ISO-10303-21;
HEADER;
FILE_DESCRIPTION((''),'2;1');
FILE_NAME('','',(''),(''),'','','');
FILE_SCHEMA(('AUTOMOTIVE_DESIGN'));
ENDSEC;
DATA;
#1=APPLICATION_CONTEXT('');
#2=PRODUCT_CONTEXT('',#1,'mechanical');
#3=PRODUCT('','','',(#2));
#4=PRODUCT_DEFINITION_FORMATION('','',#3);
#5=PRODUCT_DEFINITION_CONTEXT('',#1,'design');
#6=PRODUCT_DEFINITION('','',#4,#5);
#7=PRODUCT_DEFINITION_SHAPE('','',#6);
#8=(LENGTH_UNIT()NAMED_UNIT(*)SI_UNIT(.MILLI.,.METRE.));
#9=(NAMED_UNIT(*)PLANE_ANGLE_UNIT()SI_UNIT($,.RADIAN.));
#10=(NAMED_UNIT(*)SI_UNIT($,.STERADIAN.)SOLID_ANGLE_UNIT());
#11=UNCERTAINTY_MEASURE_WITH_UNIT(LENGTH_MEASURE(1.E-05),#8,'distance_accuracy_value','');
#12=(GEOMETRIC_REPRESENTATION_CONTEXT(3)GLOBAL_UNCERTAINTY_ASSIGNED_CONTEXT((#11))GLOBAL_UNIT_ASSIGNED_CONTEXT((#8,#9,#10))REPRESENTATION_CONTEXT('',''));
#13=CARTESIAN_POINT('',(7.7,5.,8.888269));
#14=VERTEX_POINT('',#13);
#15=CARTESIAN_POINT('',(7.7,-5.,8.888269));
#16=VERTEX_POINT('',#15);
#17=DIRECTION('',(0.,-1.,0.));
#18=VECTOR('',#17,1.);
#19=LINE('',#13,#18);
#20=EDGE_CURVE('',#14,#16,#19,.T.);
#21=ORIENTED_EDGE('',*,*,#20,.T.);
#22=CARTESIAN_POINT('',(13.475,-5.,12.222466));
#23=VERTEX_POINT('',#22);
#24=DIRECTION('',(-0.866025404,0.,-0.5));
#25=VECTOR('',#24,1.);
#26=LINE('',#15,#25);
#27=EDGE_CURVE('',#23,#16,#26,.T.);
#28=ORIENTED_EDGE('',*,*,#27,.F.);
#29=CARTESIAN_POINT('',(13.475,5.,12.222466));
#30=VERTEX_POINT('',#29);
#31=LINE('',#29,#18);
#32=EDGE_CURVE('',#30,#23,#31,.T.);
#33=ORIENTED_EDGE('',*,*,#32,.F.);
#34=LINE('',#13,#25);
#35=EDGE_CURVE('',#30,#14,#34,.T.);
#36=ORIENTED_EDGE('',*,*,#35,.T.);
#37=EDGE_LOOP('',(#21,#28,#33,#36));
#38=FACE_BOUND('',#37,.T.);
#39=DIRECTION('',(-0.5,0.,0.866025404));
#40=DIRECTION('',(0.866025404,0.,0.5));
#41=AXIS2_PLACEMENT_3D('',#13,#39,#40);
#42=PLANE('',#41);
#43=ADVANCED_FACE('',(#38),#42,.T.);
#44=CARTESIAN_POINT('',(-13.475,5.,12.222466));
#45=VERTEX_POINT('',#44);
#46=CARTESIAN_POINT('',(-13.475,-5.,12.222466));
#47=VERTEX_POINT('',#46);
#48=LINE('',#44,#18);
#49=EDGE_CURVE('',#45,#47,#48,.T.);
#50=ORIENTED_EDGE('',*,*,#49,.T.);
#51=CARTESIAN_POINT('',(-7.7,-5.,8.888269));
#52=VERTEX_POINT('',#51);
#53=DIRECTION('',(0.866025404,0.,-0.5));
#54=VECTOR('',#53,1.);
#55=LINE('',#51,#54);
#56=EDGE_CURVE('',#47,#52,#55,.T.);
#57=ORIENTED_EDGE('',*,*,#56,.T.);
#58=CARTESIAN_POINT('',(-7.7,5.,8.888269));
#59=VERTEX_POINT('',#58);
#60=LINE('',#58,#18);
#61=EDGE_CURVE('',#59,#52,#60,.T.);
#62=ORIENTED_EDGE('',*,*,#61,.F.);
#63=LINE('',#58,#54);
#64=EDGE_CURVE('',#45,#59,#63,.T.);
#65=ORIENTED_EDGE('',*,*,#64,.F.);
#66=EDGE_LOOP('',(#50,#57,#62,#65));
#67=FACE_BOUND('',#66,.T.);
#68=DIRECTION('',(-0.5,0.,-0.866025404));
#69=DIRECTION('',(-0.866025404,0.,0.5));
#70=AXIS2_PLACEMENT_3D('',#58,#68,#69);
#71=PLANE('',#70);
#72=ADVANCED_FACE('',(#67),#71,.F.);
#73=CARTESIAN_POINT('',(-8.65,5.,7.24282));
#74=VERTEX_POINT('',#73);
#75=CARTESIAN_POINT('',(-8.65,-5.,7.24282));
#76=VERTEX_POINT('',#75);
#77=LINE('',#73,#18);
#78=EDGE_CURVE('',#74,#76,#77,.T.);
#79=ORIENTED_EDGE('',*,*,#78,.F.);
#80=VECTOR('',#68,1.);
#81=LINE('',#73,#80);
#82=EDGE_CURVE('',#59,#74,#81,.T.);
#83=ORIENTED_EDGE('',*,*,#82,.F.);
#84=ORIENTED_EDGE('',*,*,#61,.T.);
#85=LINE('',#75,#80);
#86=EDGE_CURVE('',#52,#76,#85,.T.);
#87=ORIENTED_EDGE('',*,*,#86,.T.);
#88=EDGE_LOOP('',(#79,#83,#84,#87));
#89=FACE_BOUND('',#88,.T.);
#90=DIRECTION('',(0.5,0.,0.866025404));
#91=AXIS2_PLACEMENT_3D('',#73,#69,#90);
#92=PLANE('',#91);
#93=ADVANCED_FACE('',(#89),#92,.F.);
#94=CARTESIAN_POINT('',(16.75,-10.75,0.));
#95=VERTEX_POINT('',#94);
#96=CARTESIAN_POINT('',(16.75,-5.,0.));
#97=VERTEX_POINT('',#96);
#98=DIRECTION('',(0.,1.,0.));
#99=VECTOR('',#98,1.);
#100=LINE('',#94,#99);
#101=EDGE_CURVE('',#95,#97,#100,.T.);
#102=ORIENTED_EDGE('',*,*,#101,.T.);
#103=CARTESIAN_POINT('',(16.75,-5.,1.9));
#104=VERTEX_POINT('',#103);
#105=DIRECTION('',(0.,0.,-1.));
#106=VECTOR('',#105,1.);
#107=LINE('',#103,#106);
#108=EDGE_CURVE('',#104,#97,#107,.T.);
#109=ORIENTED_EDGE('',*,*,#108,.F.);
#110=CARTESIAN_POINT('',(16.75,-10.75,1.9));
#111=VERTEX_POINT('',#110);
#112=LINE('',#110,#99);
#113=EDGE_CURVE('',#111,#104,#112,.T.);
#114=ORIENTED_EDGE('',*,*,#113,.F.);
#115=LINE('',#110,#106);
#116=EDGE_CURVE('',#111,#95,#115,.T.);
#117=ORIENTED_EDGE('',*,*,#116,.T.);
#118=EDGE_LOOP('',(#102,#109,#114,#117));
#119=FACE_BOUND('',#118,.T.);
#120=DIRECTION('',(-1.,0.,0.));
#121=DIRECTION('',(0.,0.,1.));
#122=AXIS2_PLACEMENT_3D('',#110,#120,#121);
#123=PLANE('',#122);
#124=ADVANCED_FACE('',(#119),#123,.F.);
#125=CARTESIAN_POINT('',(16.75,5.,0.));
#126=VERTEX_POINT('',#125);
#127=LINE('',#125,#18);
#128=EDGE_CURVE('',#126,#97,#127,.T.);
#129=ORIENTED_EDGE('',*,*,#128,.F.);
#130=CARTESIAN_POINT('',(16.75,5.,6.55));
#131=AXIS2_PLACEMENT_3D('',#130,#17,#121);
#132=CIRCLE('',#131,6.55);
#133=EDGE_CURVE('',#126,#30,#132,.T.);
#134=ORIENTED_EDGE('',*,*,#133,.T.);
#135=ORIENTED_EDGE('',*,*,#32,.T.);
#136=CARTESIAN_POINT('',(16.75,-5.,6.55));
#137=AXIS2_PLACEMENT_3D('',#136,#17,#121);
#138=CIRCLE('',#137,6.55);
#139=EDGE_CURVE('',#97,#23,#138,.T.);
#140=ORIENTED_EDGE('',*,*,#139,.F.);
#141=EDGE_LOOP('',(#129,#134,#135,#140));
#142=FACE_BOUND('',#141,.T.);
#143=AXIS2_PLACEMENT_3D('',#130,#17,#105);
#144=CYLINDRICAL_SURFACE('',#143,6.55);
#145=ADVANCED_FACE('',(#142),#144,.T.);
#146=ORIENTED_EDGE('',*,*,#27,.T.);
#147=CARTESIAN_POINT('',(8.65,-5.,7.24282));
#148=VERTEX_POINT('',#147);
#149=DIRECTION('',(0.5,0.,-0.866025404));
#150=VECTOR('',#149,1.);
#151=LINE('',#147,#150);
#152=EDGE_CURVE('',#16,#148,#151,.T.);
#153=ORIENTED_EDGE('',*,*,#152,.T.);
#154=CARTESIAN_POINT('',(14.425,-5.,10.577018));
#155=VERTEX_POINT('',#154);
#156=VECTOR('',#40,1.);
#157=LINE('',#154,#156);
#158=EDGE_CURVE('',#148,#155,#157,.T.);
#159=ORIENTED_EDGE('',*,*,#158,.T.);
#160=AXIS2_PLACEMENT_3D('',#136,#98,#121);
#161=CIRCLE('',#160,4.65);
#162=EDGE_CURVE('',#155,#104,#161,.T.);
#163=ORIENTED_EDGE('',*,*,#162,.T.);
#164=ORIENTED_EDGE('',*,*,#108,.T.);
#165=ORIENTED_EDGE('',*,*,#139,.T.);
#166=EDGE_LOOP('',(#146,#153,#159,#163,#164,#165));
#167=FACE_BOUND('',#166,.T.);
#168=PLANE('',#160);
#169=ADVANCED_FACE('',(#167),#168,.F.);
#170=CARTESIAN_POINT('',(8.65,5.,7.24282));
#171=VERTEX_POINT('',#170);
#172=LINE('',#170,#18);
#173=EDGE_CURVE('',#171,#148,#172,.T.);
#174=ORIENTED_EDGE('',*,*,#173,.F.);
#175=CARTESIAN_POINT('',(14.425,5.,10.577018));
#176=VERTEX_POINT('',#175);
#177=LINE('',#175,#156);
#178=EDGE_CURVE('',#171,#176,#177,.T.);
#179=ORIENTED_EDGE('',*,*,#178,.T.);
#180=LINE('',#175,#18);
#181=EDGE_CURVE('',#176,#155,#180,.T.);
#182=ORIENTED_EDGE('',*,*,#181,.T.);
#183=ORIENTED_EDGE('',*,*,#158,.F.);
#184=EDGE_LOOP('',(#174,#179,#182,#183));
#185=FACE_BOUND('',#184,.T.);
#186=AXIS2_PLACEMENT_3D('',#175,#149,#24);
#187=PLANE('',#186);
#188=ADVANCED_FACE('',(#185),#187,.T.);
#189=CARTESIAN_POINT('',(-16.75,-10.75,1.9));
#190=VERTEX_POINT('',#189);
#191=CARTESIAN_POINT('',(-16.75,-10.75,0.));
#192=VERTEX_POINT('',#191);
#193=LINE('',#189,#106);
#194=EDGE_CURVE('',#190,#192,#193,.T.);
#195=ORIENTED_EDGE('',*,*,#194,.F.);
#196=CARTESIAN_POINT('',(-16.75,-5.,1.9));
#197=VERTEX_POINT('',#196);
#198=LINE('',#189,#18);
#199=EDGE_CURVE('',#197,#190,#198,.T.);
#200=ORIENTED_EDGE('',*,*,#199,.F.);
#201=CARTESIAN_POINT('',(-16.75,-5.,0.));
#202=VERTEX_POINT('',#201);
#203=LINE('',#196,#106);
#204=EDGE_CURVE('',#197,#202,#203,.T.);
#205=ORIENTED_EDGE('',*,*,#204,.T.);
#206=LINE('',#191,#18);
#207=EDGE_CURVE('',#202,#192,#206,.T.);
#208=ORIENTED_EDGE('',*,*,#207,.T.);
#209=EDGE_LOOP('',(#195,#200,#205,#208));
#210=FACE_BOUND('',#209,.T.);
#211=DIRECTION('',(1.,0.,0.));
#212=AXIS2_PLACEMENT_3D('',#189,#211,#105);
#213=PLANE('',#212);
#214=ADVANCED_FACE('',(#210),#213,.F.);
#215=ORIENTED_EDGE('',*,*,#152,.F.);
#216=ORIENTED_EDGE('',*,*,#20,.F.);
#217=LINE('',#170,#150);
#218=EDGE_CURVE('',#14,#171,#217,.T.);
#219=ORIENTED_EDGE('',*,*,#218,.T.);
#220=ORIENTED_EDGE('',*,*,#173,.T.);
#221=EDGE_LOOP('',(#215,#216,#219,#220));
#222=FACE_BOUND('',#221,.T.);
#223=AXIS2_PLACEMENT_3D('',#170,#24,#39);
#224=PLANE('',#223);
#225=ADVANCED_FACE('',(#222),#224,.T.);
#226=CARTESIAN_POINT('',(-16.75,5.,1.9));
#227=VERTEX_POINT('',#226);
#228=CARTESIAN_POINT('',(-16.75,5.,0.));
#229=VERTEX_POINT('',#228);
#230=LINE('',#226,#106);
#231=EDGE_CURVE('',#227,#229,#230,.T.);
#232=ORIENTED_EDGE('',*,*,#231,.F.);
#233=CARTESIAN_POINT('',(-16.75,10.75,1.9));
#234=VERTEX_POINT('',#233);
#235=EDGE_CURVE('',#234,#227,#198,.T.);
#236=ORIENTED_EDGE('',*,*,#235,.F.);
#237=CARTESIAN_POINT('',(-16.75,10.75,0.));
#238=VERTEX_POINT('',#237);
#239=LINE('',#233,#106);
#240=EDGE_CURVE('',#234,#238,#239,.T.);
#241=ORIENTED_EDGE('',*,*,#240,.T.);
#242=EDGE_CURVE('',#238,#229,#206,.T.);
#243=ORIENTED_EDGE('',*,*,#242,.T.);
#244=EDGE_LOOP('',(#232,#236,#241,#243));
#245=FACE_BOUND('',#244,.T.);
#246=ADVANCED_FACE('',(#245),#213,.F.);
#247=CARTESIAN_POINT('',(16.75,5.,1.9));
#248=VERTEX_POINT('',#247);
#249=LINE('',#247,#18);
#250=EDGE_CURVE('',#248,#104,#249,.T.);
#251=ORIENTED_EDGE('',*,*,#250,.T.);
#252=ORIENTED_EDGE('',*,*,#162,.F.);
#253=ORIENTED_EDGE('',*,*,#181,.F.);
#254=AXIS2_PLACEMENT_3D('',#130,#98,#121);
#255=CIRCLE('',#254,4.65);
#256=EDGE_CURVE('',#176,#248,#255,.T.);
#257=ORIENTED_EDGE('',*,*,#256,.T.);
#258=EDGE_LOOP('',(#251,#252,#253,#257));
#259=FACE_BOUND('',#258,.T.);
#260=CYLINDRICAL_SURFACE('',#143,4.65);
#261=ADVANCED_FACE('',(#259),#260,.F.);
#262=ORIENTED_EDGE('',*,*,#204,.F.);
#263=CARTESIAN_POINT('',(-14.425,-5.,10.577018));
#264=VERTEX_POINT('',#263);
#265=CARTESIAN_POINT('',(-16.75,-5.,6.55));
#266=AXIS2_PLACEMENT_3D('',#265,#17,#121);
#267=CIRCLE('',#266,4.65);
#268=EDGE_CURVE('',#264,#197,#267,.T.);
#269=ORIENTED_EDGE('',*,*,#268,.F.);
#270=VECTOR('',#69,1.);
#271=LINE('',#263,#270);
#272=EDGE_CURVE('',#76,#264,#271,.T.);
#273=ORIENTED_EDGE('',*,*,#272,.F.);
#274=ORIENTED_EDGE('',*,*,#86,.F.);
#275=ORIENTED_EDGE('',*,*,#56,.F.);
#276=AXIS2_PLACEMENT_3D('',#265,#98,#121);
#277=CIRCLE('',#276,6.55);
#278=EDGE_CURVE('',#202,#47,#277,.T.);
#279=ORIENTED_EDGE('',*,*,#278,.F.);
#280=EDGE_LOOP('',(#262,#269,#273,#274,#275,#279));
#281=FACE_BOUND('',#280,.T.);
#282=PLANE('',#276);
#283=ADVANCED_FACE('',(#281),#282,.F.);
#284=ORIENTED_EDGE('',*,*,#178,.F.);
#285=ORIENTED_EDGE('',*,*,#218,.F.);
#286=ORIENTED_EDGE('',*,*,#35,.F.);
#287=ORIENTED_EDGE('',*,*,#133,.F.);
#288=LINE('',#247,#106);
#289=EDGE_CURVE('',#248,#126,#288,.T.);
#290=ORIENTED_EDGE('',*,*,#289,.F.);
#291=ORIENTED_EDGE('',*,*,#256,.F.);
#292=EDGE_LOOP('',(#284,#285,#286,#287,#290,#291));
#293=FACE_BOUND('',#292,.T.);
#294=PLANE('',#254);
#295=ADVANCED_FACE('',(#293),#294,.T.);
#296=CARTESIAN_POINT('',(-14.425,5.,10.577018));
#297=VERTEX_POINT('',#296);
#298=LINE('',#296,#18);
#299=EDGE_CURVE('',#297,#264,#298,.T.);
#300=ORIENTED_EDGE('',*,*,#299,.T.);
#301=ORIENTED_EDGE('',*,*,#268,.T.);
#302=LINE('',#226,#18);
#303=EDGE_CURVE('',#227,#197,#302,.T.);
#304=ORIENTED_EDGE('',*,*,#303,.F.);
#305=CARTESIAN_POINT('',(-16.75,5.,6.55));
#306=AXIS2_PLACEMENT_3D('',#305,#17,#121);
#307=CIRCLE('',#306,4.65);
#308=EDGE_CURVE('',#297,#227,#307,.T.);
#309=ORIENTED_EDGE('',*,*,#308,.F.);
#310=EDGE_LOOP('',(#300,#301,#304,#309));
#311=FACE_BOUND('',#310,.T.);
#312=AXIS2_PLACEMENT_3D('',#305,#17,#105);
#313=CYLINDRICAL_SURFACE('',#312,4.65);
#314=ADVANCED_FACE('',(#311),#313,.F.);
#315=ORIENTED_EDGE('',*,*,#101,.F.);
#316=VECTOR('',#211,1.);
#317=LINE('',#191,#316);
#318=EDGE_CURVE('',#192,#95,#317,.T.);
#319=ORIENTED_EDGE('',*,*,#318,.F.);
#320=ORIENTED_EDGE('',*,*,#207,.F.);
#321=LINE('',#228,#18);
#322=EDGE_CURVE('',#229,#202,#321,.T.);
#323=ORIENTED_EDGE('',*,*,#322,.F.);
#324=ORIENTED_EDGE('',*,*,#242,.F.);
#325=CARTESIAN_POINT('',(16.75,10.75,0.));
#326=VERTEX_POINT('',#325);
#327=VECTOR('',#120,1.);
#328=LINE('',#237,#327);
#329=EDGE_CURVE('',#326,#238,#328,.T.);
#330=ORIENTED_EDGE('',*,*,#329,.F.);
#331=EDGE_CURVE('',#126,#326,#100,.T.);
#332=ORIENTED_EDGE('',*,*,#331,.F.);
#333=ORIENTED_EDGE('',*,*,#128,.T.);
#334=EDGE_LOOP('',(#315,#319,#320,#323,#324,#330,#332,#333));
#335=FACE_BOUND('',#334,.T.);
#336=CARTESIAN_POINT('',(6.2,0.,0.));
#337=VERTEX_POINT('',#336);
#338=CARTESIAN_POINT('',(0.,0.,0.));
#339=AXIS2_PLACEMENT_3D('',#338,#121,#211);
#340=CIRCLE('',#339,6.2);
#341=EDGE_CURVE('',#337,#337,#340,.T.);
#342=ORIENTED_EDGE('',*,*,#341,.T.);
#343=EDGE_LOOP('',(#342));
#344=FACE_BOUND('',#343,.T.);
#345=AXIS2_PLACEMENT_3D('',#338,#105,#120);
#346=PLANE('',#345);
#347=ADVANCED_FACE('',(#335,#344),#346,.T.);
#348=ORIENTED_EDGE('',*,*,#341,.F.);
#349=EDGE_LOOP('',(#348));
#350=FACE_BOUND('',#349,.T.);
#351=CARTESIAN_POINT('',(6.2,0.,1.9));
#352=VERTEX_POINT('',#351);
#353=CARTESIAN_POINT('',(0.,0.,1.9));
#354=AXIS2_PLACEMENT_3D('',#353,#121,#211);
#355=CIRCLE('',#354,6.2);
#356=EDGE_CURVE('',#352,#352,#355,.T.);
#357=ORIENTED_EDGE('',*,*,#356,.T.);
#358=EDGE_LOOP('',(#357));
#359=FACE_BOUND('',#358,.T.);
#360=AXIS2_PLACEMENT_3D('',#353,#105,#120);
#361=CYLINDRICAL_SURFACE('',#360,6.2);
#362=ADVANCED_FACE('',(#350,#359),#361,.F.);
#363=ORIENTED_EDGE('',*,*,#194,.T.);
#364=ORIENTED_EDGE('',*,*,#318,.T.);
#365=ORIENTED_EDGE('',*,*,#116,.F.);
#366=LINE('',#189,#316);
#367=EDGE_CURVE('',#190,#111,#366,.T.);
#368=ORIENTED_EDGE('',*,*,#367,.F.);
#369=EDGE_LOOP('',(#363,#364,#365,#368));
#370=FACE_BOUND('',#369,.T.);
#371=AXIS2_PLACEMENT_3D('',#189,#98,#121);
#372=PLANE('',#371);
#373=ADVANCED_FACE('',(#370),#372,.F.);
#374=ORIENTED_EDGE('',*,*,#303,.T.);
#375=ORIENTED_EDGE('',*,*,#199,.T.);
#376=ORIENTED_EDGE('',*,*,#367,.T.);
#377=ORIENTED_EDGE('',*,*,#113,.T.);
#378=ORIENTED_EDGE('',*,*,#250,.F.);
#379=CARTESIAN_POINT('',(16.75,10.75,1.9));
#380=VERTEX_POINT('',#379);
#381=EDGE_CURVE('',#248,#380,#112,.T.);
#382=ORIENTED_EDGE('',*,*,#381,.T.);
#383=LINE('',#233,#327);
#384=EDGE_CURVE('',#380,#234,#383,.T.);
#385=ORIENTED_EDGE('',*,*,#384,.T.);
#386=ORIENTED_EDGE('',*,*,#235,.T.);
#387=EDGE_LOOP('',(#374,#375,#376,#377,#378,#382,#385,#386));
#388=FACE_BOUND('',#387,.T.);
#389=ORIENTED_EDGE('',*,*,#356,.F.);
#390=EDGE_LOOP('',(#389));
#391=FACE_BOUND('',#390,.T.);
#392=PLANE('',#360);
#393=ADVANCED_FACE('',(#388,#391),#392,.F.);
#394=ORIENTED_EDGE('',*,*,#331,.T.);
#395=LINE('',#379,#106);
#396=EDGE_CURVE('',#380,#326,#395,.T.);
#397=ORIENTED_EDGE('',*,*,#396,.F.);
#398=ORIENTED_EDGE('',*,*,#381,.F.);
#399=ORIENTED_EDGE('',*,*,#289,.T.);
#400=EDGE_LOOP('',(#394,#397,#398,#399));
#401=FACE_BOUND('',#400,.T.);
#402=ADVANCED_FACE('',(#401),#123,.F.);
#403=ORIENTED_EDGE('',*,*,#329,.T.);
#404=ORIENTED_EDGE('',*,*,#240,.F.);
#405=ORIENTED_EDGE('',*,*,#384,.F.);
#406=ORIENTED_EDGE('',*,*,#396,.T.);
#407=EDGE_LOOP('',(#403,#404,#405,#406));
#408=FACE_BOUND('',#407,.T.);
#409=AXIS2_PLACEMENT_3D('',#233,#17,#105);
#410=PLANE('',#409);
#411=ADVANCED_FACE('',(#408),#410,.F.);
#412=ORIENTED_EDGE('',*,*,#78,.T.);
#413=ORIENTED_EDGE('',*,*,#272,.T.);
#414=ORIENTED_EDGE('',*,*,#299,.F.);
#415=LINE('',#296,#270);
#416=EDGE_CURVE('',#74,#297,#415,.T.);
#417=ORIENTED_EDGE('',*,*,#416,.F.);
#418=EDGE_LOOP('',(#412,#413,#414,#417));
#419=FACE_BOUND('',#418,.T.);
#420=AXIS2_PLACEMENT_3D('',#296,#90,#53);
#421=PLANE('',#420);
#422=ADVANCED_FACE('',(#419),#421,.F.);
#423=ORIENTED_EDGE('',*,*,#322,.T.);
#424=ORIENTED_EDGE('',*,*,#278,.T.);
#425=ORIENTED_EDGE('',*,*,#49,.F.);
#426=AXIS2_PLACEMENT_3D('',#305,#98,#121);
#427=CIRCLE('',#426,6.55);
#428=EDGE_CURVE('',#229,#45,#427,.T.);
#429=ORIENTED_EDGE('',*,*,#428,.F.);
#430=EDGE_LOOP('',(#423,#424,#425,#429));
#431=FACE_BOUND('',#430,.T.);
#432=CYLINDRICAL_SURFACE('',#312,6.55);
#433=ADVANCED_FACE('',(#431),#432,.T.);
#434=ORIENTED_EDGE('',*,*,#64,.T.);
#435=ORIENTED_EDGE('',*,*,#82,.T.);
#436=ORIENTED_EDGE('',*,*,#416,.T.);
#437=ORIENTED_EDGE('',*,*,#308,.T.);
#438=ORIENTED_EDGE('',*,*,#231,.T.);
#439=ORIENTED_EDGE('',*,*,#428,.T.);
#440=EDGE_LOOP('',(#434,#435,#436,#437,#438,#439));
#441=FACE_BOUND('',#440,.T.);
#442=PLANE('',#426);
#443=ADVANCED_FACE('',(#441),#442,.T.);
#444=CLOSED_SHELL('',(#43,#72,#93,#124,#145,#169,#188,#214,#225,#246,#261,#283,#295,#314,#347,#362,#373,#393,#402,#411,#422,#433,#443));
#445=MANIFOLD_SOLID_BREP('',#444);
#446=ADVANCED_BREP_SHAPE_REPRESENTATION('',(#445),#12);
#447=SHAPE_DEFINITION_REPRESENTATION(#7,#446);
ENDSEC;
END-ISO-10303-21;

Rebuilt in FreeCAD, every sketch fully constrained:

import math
import FreeCAD as App
import Part
import Sketcher

V = App.Vector
Q = App.Units.Quantity

doc = App.newDocument("Part")
params = doc.addObject("Spreadsheet::Sheet", "Params")
for row, (alias, value) in enumerate([
    ("sketch1_diameter", "12.4 mm"),
    ("sketch1_width", "33.5 mm"),
    ("sketch1_height", "21.5 mm"),
    ("pad1_length", "1.9 mm"),
    ("sketch2_radius", "4.65 mm"),
    ("sketch2_radius2", "6.55 mm"),
    ("pad2_length", "10 mm"),
], start=1):
    params.set(f"A{row}", alias)
    params.set(f"B{row}", "=" + value)
    params.setAlias(f"B{row}", alias)

body = doc.addObject("PartDesign::Body", "Body")

# Sketch on XY plane
sketch1 = body.newObject("Sketcher::SketchObject", "Sketch")
sketch1.AttachmentSupport = (doc.getObject("XY_Plane"), [""])
sketch1.MapMode = "FlatFace"
sketch1.addGeometry([
    Part.LineSegment(V(-17, 11, 0), V(-17, -11, 0)),  # 0
    Part.LineSegment(V(-17, -11, 0), V(17, -11, 0)),  # 1
    Part.LineSegment(V(17, -11, 0), V(17, 11, 0)),  # 2
    Part.LineSegment(V(17, 11, 0), V(-17, 11, 0)),  # 3
    Part.Circle(V(0, 0, 0), V(0, 0, 1), 6),  # 4
], False)
sketch1.addConstraint([
    Sketcher.Constraint("Coincident", 0, 2, 1, 1),
    Sketcher.Constraint("Coincident", 1, 2, 2, 1),
    Sketcher.Constraint("Coincident", 2, 2, 3, 1),
    Sketcher.Constraint("Coincident", 3, 2, 0, 1),
    Sketcher.Constraint("Vertical", 0),
    Sketcher.Constraint("Horizontal", 1),
    Sketcher.Constraint("Vertical", 2),
    Sketcher.Constraint("Horizontal", 3),
    Sketcher.Constraint("Coincident", 4, 3, -1, 1),
    Sketcher.Constraint("Symmetric", 0, 2, 2, 2, -1, 1),
    Sketcher.Constraint("Diameter", 4, 12.4),
    Sketcher.Constraint("DistanceX", 1, 1, 1, 2, 33.5),
    Sketcher.Constraint("DistanceY", 0, 2, 0, 1, 21.5),
])
sketch1.setExpression("Constraints[10]", "Params.sketch1_diameter")
sketch1.setExpression("Constraints[11]", "Params.sketch1_width")
sketch1.setExpression("Constraints[12]", "Params.sketch1_height")
pad1 = body.newObject("PartDesign::Pad", "Pad")
pad1.Profile = sketch1
pad1.setExpression("Length", "Params.pad1_length")

# Sketch on XZ plane
sketch2 = body.newObject("Sketcher::SketchObject", "Sketch001")
sketch2.AttachmentSupport = (doc.getObject("XZ_Plane"), [""])
sketch2.MapMode = "FlatFace"
sketch2.addGeometry([
    Part.LineSegment(V(-8.7, 7.2, 0), V(-14.4, 10.6, 0)),  # 0
    Part.ArcOfCircle(Part.Circle(V(-16.8, 6.5, 0), V(0, 0, 1), 4.7), math.radians(60), math.radians(270)),  # 1
    Part.LineSegment(V(-16.8, 1.9, 0), V(-16.8, 0, 0)),  # 2
    Part.ArcOfCircle(Part.Circle(V(-16.8, 6.5, 0), V(0, 0, 1), 6.5), math.radians(60), math.radians(270)),  # 3
    Part.LineSegment(V(-13.5, 12.2, 0), V(-7.7, 8.9, 0)),  # 4
    Part.LineSegment(V(-7.7, 8.9, 0), V(-8.7, 7.2, 0)),  # 5
], False)
sketch2.addConstraint([
    Sketcher.Constraint("Tangent", 0, 2, 1, 1),
    Sketcher.Constraint("Coincident", 1, 2, 2, 1),
    Sketcher.Constraint("Coincident", 2, 2, 3, 2),
    Sketcher.Constraint("Tangent", 3, 1, 4, 1),
    Sketcher.Constraint("Coincident", 4, 2, 5, 1),
    Sketcher.Constraint("Coincident", 5, 2, 0, 1),
    Sketcher.Constraint("Vertical", 2),
    Sketcher.Constraint("Coincident", 3, 3, 1, 3),
    Sketcher.Constraint("PointOnObject", 2, 2, -1),
    Sketcher.Constraint("Parallel", 0, 4),
    Sketcher.Constraint("Perpendicular", 4, 5),
    Sketcher.Constraint("Vertical", 3, 3, 1, 2),
    Sketcher.Constraint("Angle", 0, Q("150 deg")),
    Sketcher.Constraint("Radius", 1, 4.65),
    Sketcher.Constraint("Radius", 3, 6.55),
    Sketcher.Constraint("DistanceX", 4, 2, -1, 1, 7.7),
    Sketcher.Constraint("DistanceX", 1, 3, 5, 2, 8.1),
])
sketch2.setExpression("Constraints[13]", "Params.sketch2_radius")
sketch2.setExpression("Constraints[14]", "Params.sketch2_radius2")
pad2 = body.newObject("PartDesign::Pad", "Pad001")
pad2.Profile = sketch2
pad2.setExpression("Length", "Params.pad2_length")
pad2.Midplane = True
doc.recompute()

mirrored = body.newObject("PartDesign::Mirrored", "Mirrored")
mirrored.Originals = [pad2]
mirrored.MirrorPlane = (doc.getObject("YZ_Plane"), [""])
body.Tip = mirrored

doc.recompute()
